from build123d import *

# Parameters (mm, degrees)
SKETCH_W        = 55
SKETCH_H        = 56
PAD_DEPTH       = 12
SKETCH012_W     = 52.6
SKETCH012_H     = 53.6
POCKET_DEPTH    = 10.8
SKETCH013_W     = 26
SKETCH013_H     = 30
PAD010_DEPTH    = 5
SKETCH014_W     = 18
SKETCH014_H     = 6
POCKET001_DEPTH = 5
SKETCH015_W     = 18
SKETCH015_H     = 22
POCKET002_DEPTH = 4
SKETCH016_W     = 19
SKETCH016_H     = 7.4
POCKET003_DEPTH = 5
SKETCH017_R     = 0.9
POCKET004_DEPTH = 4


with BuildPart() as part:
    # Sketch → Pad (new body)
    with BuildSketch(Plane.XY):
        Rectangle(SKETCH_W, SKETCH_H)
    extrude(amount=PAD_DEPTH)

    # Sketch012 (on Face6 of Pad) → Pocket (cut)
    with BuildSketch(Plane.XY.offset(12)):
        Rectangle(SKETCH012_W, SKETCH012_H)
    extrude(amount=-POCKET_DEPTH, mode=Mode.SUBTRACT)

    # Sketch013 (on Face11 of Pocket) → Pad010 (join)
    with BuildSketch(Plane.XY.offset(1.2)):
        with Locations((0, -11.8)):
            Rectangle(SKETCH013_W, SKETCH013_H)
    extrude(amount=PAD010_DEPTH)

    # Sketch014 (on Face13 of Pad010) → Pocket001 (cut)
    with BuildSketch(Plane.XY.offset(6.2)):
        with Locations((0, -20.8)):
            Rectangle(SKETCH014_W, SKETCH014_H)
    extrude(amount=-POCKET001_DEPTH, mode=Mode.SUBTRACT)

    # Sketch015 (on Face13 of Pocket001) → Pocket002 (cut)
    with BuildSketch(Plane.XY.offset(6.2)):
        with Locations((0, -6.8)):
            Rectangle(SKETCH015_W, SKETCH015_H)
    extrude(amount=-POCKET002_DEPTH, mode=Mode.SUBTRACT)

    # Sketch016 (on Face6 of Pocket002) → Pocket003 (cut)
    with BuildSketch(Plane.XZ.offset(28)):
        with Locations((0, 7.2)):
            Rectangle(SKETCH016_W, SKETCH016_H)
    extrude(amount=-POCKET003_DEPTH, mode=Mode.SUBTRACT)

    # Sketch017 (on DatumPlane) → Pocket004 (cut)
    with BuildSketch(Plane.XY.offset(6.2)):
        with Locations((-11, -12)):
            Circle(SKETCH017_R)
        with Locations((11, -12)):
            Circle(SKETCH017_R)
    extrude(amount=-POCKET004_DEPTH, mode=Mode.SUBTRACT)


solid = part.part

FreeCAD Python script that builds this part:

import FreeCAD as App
import Part
import Sketcher


def add_polygon(sketch, points):
    """Adds a closed chain of lines whose ends are joined by coincident constraints."""
    first, n = sketch.GeometryCount, len(points)
    for a, b in zip(points, points[1:] + points[:1]):
        sketch.addGeometry(Part.LineSegment(App.Vector(*a, 0), App.Vector(*b, 0)), False)
    for i in range(n):
        sketch.addConstraint(Sketcher.Constraint("Coincident", first + i, 2, first + (i + 1) % n, 1))

doc = App.newDocument("Part")
params = doc.addObject("Spreadsheet::Sheet", "Params")
for row, (alias, value) in enumerate([
    ("sketch1_width", "55 mm"),
    ("sketch1_height", "56 mm"),
    ("pad1_length", "12 mm"),
    ("sketch2_width", "52.6 mm"),
    ("sketch2_height", "53.6 mm"),
    ("pocket1_length", "10.8 mm"),
    ("sketch3_width", "26 mm"),
    ("sketch3_height", "30 mm"),
    ("pad2_length", "5 mm"),
    ("sketch4_width", "18 mm"),
    ("sketch4_height", "6 mm"),
    ("pocket2_length", "5 mm"),
    ("sketch5_width", "18 mm"),
    ("sketch5_height", "22 mm"),
    ("pocket3_length", "4 mm"),
    ("sketch6_width", "19 mm"),
    ("sketch6_height", "7.4 mm"),
    ("pocket4_length", "5 mm"),
    ("sketch7_diameter", "1.8 mm"),
    ("pocket5_length", "4 mm"),
], start=1):
    params.set(f"A{row}", alias)
    params.set(f"B{row}", "=" + value)
    params.setAlias(f"B{row}", alias)

body = doc.addObject("PartDesign::Body", "Body")

sketch1 = body.newObject("Sketcher::SketchObject", "Sketch")
sketch1.AttachmentSupport = (doc.getObject("XY_Plane"), [""])
sketch1.MapMode = "FlatFace"
add_polygon(sketch1, [(-28, 28), (-28, -28), (28, -28), (28, 28)])
sketch1.addConstraint([
    Sketcher.Constraint("Vertical", 0),
    Sketcher.Constraint("Horizontal", 1),
    Sketcher.Constraint("Vertical", 2),
    Sketcher.Constraint("Horizontal", 3),
    Sketcher.Constraint("Symmetric", 0, 2, 2, 2, -1, 1),
    Sketcher.Constraint("DistanceX", 1, 1, 1, 2, 55.0),
    Sketcher.Constraint("DistanceY", 0, 2, 0, 1, 56.0),
])
sketch1.setExpression("Constraints[9]", "Params.sketch1_width")
sketch1.setExpression("Constraints[10]", "Params.sketch1_height")
pad1 = body.newObject("PartDesign::Pad", "Pad")
pad1.Profile = sketch1
pad1.setExpression("Length", "Params.pad1_length")

sketch2 = body.newObject("Sketcher::SketchObject", "Sketch001")
sketch2.AttachmentSupport = (doc.getObject("XY_Plane"), [""])
sketch2.MapMode = "FlatFace"
sketch2.AttachmentOffset = App.Placement(App.Vector(0, 0, 12), App.Rotation())
add_polygon(sketch2, [(-26, 27), (-26, -27), (26, -27), (26, 27)])
sketch2.addConstraint([
    Sketcher.Constraint("Vertical", 0),
    Sketcher.Constraint("Horizontal", 1),
    Sketcher.Constraint("Vertical", 2),
    Sketcher.Constraint("Horizontal", 3),
    Sketcher.Constraint("Symmetric", 0, 2, 2, 2, -1, 1),
    Sketcher.Constraint("DistanceX", 1, 1, 1, 2, 52.6),
    Sketcher.Constraint("DistanceY", 0, 2, 0, 1, 53.6),
])
sketch2.setExpression("Constraints[9]", "Params.sketch2_width")
sketch2.setExpression("Constraints[10]", "Params.sketch2_height")
pocket1 = body.newObject("PartDesign::Pocket", "Pocket")
pocket1.Profile = sketch2
pocket1.setExpression("Length", "Params.pocket1_length")

sketch3 = body.newObject("Sketcher::SketchObject", "Sketch002")
sketch3.AttachmentSupport = (doc.getObject("XY_Plane"), [""])
sketch3.MapMode = "FlatFace"
sketch3.AttachmentOffset = App.Placement(App.Vector(0, 0, 1.2), App.Rotation())
add_polygon(sketch3, [(-13, 3), (-13, -27), (13, -27), (13, 3)])
sketch3.addConstraint([
    Sketcher.Constraint("Vertical", 0),
    Sketcher.Constraint("Horizontal", 1),
    Sketcher.Constraint("Vertical", 2),
    Sketcher.Constraint("Horizontal", 3),
    Sketcher.Constraint("DistanceX", 1, 1, 1, 2, 26.0),
    Sketcher.Constraint("DistanceY", 0, 2, 0, 1, 30.0),
    Sketcher.Constraint("DistanceX", 0, 2, -1, 1, 13.0),
    Sketcher.Constraint("DistanceY", 0, 2, -1, 1, 26.8),
])
sketch3.setExpression("Constraints[8]", "Params.sketch3_width")
sketch3.setExpression("Constraints[9]", "Params.sketch3_height")
pad2 = body.newObject("PartDesign::Pad", "Pad001")
pad2.Profile = sketch3
pad2.setExpression("Length", "Params.pad2_length")

sketch4 = body.newObject("Sketcher::SketchObject", "Sketch003")
sketch4.AttachmentSupport = (doc.getObject("XY_Plane"), [""])
sketch4.MapMode = "FlatFace"
sketch4.AttachmentOffset = App.Placement(App.Vector(0, 0, 6.2), App.Rotation())
add_polygon(sketch4, [(-9, -18), (-9, -24), (9, -24), (9, -18)])
sketch4.addConstraint([
    Sketcher.Constraint("Vertical", 0),
    Sketcher.Constraint("Horizontal", 1),
    Sketcher.Constraint("Vertical", 2),
    Sketcher.Constraint("Horizontal", 3),
    Sketcher.Constraint("DistanceX", 1, 1, 1, 2, 18.0),
    Sketcher.Constraint("DistanceY", 0, 2, 0, 1, 6.0),
    Sketcher.Constraint("DistanceX", 0, 2, -1, 1, 9.0),
    Sketcher.Constraint("DistanceY", 0, 2, -1, 1, 23.8),
])
sketch4.setExpression("Constraints[8]", "Params.sketch4_width")
sketch4.setExpression("Constraints[9]", "Params.sketch4_height")
pocket2 = body.newObject("PartDesign::Pocket", "Pocket001")
pocket2.Profile = sketch4
pocket2.setExpression("Length", "Params.pocket2_length")

sketch5 = body.newObject("Sketcher::SketchObject", "Sketch004")
sketch5.AttachmentSupport = (doc.getObject("XY_Plane"), [""])
sketch5.MapMode = "FlatFace"
sketch5.AttachmentOffset = App.Placement(App.Vector(0, 0, 6.2), App.Rotation())
add_polygon(sketch5, [(-9, 4), (-9, -18), (9, -18), (9, 4)])
sketch5.addConstraint([
    Sketcher.Constraint("Vertical", 0),
    Sketcher.Constraint("Horizontal", 1),
    Sketcher.Constraint("Vertical", 2),
    Sketcher.Constraint("Horizontal", 3),
    Sketcher.Constraint("DistanceX", 1, 1, 1, 2, 18.0),
    Sketcher.Constraint("DistanceY", 0, 2, 0, 1, 22.0),
    Sketcher.Constraint("DistanceX", 0, 2, -1, 1, 9.0),
    Sketcher.Constraint("DistanceY", 0, 2, -1, 1, 17.8),
])
sketch5.setExpression("Constraints[8]", "Params.sketch5_width")
sketch5.setExpression("Constraints[9]", "Params.sketch5_height")
pocket3 = body.newObject("PartDesign::Pocket", "Pocket002")
pocket3.Profile = sketch5
pocket3.setExpression("Length", "Params.pocket3_length")

sketch6 = body.newObject("Sketcher::SketchObject", "Sketch005")
sketch6.AttachmentSupport = (doc.getObject("XZ_Plane"), [""])
sketch6.MapMode = "FlatFace"
sketch6.AttachmentOffset = App.Placement(App.Vector(0, 0, 28), App.Rotation())
add_polygon(sketch6, [(-10, 11), (-10, 4), (10, 4), (10, 11)])
sketch6.addConstraint([
    Sketcher.Constraint("Vertical", 0),
    Sketcher.Constraint("Horizontal", 1),
    Sketcher.Constraint("Vertical", 2),
    Sketcher.Constraint("Horizontal", 3),
    Sketcher.Constraint("DistanceX", 1, 1, 1, 2, 19.0),
    Sketcher.Constraint("DistanceY", 0, 2, 0, 1, 7.4),
    Sketcher.Constraint("DistanceX", 0, 2, -1, 1, 9.5),
    Sketcher.Constraint("DistanceY", -1, 1, 0, 2, 3.5),
])
sketch6.setExpression("Constraints[8]", "Params.sketch6_width")
sketch6.setExpression("Constraints[9]", "Params.sketch6_height")
pocket4 = body.newObject("PartDesign::Pocket", "Pocket003")
pocket4.Profile = sketch6
pocket4.setExpression("Length", "Params.pocket4_length")

sketch7 = body.newObject("Sketcher::SketchObject", "Sketch006")
sketch7.AttachmentSupport = (doc.getObject("XY_Plane"), [""])
sketch7.MapMode = "FlatFace"
sketch7.AttachmentOffset = App.Placement(App.Vector(0, 0, 6.2), App.Rotation())
sketch7.addGeometry([
    Part.Circle(App.Vector(-11, -12, 0), App.Vector(0, 0, 1), 0.9),
    Part.Circle(App.Vector(11, -12, 0), App.Vector(0, 0, 1), 0.9),
], False)
sketch7.addConstraint([
    Sketcher.Constraint("Equal", 0, 1),
    Sketcher.Constraint("Symmetric", 0, 3, 1, 3, -2),
    Sketcher.Constraint("Diameter", 0, 1.8),
    Sketcher.Constraint("DistanceX", 0, 3, -1, 1, 11.0),
    Sketcher.Constraint("DistanceY", 0, 3, -1, 1, 12.0),
])
sketch7.setExpression("Constraints[2]", "Params.sketch7_diameter")
pocket5 = body.newObject("PartDesign::Pocket", "Pocket004")
pocket5.Profile = sketch7
pocket5.setExpression("Length", "Params.pocket5_length")

doc.recompute()
